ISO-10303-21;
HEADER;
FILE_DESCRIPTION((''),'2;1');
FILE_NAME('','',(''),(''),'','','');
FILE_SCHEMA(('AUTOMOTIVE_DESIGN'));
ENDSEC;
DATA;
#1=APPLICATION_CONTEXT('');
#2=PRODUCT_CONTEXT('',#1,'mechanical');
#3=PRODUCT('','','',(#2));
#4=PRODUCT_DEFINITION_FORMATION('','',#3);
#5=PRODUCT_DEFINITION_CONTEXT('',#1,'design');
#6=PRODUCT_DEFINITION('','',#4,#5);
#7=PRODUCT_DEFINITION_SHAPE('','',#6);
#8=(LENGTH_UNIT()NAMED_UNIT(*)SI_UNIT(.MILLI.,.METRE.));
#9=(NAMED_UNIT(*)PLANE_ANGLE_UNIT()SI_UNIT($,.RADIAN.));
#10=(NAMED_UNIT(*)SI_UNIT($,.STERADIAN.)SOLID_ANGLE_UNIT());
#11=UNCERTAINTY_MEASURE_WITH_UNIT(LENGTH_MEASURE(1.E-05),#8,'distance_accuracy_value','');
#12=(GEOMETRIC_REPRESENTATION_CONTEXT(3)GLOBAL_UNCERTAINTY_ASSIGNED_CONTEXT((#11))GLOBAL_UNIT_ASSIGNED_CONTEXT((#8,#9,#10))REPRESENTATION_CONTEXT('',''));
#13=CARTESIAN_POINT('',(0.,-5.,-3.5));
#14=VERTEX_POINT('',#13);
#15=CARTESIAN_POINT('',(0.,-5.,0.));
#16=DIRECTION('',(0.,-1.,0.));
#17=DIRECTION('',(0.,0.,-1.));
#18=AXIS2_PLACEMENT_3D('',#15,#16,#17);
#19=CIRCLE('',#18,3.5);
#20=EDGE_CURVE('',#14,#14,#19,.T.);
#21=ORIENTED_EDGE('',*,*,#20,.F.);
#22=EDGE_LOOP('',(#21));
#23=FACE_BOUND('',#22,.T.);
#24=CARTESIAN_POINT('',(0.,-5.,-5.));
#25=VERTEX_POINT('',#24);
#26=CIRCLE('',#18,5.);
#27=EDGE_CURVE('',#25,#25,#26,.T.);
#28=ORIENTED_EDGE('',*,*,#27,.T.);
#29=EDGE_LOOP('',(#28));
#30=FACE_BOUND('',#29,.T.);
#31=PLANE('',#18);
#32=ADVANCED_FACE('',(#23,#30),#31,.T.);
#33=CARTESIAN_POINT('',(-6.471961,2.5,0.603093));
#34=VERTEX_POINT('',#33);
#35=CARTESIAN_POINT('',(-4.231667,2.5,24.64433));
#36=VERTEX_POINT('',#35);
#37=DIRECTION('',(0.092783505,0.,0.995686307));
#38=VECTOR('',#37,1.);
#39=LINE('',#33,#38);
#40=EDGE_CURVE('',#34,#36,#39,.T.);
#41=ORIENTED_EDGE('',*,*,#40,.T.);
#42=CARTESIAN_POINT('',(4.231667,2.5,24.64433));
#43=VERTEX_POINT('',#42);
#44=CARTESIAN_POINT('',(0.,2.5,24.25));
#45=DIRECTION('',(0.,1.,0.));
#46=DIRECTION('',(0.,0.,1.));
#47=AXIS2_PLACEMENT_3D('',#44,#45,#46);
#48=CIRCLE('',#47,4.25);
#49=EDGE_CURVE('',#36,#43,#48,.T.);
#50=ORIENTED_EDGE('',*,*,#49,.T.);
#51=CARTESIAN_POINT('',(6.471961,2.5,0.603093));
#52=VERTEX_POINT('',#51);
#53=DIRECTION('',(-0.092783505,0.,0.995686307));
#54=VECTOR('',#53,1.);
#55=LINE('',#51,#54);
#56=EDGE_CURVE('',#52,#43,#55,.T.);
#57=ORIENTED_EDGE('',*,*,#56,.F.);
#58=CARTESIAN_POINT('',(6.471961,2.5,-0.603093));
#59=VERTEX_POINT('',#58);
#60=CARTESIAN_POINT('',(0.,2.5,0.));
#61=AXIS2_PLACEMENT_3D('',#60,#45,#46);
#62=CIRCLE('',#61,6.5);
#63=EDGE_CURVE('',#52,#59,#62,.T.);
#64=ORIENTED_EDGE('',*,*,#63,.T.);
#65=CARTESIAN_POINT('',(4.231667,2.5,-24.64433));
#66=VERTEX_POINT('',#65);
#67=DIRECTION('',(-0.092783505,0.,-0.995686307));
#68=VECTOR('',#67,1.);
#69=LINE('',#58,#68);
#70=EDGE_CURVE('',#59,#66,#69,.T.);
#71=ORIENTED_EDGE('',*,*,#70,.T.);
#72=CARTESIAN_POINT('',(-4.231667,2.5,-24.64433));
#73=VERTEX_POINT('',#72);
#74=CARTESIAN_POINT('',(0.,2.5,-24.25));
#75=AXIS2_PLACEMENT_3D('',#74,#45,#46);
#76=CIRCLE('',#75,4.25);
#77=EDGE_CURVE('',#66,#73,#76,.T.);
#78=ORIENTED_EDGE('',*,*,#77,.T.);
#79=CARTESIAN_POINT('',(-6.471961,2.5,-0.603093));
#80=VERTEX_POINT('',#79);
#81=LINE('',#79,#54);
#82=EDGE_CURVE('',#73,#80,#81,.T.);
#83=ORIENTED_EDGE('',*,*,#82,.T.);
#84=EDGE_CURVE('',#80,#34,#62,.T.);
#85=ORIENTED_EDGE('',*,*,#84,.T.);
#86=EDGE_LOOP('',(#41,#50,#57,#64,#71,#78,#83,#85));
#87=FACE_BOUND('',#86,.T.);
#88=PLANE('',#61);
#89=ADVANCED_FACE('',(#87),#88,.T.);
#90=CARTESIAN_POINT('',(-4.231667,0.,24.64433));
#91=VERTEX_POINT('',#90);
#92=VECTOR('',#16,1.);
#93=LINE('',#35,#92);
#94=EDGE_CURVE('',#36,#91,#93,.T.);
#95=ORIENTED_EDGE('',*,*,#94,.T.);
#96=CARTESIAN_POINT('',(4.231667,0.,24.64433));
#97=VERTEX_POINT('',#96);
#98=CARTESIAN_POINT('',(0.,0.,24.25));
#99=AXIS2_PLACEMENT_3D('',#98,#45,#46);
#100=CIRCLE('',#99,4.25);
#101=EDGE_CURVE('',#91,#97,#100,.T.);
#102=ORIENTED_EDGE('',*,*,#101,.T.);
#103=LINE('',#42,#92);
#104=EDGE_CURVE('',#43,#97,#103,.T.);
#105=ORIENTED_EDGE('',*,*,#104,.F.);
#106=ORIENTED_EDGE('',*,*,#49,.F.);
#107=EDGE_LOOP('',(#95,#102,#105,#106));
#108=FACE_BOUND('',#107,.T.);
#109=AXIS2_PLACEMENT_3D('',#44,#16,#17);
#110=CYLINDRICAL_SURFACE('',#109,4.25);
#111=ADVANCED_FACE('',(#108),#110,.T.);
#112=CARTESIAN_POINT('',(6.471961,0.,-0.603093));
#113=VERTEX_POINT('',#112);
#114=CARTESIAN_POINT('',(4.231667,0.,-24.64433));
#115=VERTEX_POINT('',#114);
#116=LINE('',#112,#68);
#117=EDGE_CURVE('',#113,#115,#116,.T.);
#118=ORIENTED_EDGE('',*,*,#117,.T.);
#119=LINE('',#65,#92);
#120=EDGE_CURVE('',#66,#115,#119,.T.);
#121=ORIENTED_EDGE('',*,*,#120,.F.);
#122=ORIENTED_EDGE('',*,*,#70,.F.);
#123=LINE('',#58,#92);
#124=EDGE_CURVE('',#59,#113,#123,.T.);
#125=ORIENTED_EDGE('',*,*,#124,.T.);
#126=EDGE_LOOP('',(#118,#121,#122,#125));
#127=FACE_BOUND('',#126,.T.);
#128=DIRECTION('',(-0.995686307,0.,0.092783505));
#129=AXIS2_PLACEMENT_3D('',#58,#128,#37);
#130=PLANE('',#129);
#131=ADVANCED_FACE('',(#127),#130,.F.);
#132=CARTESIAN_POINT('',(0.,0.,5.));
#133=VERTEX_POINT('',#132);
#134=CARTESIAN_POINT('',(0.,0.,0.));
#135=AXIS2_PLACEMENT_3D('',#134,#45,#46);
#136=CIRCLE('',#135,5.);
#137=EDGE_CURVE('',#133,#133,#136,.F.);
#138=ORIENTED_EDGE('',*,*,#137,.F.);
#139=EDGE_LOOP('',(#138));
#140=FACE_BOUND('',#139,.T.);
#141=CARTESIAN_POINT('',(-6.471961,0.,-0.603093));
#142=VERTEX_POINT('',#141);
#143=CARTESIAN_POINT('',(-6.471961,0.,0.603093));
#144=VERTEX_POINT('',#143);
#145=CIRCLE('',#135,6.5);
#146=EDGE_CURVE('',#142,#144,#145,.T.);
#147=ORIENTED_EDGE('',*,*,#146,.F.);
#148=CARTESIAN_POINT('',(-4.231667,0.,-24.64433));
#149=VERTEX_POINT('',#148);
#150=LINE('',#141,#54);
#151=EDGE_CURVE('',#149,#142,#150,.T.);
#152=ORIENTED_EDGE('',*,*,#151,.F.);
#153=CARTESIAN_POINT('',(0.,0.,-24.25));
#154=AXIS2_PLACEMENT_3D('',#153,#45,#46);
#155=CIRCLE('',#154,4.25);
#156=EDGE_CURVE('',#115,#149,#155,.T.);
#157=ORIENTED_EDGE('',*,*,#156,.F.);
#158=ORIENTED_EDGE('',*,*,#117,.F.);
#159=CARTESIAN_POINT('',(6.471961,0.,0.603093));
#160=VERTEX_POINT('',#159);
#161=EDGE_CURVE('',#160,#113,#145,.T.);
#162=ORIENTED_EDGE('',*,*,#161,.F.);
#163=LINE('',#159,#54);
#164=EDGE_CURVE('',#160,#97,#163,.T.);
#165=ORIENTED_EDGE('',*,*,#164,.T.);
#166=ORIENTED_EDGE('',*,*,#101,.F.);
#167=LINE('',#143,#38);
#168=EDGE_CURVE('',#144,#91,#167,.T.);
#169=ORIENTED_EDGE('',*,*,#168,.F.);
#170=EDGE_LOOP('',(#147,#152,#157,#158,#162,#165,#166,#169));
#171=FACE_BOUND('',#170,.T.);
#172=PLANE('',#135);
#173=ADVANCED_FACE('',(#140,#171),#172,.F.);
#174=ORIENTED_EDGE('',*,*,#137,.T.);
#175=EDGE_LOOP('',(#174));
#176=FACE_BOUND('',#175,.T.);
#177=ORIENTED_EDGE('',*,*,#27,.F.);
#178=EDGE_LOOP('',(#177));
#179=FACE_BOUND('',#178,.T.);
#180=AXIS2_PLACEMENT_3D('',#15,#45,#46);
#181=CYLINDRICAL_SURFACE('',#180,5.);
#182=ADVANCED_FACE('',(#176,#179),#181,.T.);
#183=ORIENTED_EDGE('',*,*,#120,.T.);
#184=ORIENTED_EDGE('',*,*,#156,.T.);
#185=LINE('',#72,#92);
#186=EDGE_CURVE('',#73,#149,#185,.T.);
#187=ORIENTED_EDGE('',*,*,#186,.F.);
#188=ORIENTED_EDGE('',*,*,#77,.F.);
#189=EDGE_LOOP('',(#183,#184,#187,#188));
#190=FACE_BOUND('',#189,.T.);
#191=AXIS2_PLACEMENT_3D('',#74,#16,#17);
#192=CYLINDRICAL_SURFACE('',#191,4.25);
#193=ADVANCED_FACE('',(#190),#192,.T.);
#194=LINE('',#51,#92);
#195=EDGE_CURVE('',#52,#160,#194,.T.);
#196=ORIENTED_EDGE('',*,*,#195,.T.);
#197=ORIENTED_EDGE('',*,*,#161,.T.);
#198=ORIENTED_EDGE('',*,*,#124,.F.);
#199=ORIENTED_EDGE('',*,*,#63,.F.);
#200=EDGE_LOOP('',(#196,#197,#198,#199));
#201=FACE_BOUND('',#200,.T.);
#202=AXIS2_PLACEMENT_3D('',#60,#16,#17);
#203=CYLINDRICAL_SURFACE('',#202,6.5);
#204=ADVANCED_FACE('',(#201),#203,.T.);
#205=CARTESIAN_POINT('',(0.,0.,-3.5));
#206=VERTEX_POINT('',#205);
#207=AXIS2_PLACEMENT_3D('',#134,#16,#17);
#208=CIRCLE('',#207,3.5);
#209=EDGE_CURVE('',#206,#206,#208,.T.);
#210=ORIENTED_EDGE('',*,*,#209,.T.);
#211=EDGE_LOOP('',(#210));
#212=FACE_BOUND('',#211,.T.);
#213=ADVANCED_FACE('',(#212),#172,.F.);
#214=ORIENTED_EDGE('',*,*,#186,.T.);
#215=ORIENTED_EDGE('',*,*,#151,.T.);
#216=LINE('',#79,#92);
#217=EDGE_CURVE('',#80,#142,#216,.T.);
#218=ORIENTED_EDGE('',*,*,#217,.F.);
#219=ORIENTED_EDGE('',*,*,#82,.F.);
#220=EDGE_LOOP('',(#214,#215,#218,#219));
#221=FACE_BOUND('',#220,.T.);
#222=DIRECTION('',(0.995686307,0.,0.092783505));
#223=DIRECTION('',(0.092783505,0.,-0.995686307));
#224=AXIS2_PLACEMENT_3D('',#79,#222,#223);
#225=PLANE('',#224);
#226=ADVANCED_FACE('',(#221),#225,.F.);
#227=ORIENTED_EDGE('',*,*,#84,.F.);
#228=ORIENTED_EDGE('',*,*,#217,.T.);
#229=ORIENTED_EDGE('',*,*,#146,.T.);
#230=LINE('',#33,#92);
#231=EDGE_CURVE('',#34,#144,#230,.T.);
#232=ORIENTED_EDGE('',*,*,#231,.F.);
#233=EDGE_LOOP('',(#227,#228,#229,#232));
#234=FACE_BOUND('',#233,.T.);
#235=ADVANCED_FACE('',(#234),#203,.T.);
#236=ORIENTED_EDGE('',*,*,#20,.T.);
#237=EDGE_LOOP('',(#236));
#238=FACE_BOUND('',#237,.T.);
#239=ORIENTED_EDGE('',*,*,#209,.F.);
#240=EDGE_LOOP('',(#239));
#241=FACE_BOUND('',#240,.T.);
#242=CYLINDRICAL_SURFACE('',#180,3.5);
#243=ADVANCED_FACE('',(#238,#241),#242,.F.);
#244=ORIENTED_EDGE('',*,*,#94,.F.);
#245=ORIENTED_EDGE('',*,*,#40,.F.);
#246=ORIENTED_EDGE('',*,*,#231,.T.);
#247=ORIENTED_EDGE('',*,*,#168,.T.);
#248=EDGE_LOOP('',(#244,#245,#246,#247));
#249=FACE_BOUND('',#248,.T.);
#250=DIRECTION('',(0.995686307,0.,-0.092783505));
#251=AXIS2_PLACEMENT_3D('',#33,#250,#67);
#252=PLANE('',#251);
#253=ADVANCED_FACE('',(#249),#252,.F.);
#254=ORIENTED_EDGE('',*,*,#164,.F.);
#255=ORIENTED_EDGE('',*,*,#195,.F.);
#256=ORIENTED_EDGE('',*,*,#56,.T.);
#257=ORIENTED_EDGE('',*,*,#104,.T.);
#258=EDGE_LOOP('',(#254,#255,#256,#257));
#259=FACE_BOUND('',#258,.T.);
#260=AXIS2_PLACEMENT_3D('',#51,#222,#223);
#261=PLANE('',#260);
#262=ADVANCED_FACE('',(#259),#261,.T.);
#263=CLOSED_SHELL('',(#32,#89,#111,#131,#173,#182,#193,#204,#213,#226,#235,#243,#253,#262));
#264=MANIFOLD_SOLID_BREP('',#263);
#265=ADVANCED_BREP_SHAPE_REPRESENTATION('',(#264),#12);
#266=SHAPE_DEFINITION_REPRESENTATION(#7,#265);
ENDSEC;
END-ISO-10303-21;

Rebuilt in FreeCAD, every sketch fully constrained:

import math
import FreeCAD as App
import Part
import Sketcher
from FreeCAD import Vector

doc = App.newDocument("Part")
params = doc.addObject("Spreadsheet::Sheet", "Params")
for row, (alias, value) in enumerate([
    ("sketch1_radius", "6.5 mm"),
    ("sketch1_radius2", "4.25 mm"),
    ("pad1_length", "2.5 mm"),
    ("sketch2_diameter", "10 mm"),
    ("sketch2_diameter2", "7 mm"),
    ("pad2_length", "5 mm"),
], start=1):
    params.set(f"A{row}", alias)
    params.set(f"B{row}", "=" + value)
    params.setAlias(f"B{row}", alias)

body = doc.addObject("PartDesign::Body", "Body")

# Sketch on XZ plane
sketch1 = body.newObject("Sketcher::SketchObject", "Sketch")
sketch1.AttachmentSupport = (doc.getObject("XZ_Plane"), [""])
sketch1.MapMode = "FlatFace"
sketch1.addGeometry(Part.LineSegment(Vector(-4.2, -24.6, 0), Vector(-6.5, -0.6, 0)), False)
sketch1.addGeometry(Part.ArcOfCircle(Part.Circle(Vector(0, 0, 0), Vector(0, 0, 1), 6.5), math.radians(174.68), math.radians(185.32)), False)
sketch1.addGeometry(Part.LineSegment(Vector(-6.5, 0.6, 0), Vector(-4.2, 24.6, 0)), False)
sketch1.addGeometry(Part.ArcOfCircle(Part.Circle(Vector(0, 24.2, 0), Vector(0, 0, 1), 4.2), math.radians(5), math.radians(175)), False)
sketch1.addGeometry(Part.LineSegment(Vector(4.2, 24.6, 0), Vector(6.5, 0.6, 0)), False)
sketch1.addGeometry(Part.ArcOfCircle(Part.Circle(Vector(0, 0, 0), Vector(0, 0, 1), 6.5), math.radians(-5.32), math.radians(5.32)), False)
sketch1.addGeometry(Part.LineSegment(Vector(6.5, -0.6, 0), Vector(4.2, -24.6, 0)), False)
sketch1.addGeometry(Part.ArcOfCircle(Part.Circle(Vector(0, -24.2, 0), Vector(0, 0, 1), 4.2), math.radians(-175), math.radians(-5)), False)
sketch1.addConstraint(Sketcher.Constraint("Tangent", 0, 2, 1, 2))
sketch1.addConstraint(Sketcher.Constraint("Tangent", 1, 1, 2, 1))
sketch1.addConstraint(Sketcher.Constraint("Tangent", 2, 2, 3, 2))
sketch1.addConstraint(Sketcher.Constraint("Tangent", 3, 1, 4, 1))
sketch1.addConstraint(Sketcher.Constraint("Tangent", 4, 2, 5, 2))
sketch1.addConstraint(Sketcher.Constraint("Tangent", 5, 1, 6, 1))
sketch1.addConstraint(Sketcher.Constraint("Tangent", 6, 2, 7, 2))
sketch1.addConstraint(Sketcher.Constraint("Tangent", 7, 1, 0, 1))
sketch1.addConstraint(Sketcher.Constraint("Coincident", 1, 3, -1, 1))
sketch1.addConstraint(Sketcher.Constraint("Coincident", 5, 3, -1, 1))
sketch1.addConstraint(Sketcher.Constraint("Equal", 1, 5))
sketch1.addConstraint(Sketcher.Constraint("Equal", 3, 7))
sketch1.addConstraint(Sketcher.Constraint("Symmetric", 3, 3, 7, 3, -1, 1))
sketch1.addConstraint(Sketcher.Constraint("PointOnObject", 3, 3, -2))
sketch1.addConstraint(Sketcher.Constraint("Radius", 1, 6.5))
sketch1.addConstraint(Sketcher.Constraint("Radius", 3, 4.25))
sketch1.addConstraint(Sketcher.Constraint("DistanceY", 7, 3, 3, 3, 48.5))
sketch1.setExpression("Constraints[14]", "Params.sketch1_radius")
sketch1.setExpression("Constraints[15]", "Params.sketch1_radius2")
pad1 = body.newObject("PartDesign::Pad", "Pad")
pad1.Profile = sketch1
pad1.setExpression("Length", "Params.pad1_length")
pad1.Reversed = True

# Sketch on XZ plane
sketch2 = body.newObject("Sketcher::SketchObject", "Sketch001")
sketch2.AttachmentSupport = (doc.getObject("XZ_Plane"), [""])
sketch2.MapMode = "FlatFace"
sketch2.addGeometry(Part.Circle(Vector(0, 0, 0), Vector(0, 0, 1), 5), False)
sketch2.addGeometry(Part.Circle(Vector(0, 0, 0), Vector(0, 0, 1), 3.5), False)
sketch2.addConstraint(Sketcher.Constraint("Coincident", 0, 3, -1, 1))
sketch2.addConstraint(Sketcher.Constraint("Coincident", 1, 3, -1, 1))
sketch2.addConstraint(Sketcher.Constraint("Diameter", 0, 10.0))
sketch2.addConstraint(Sketcher.Constraint("Diameter", 1, 7.0))
sketch2.setExpression("Constraints[2]", "Params.sketch2_diameter")
sketch2.setExpression("Constraints[3]", "Params.sketch2_diameter2")
pad2 = body.newObject("PartDesign::Pad", "Pad001")
pad2.Profile = sketch2
pad2.setExpression("Length", "Params.pad2_length")

doc.recompute()
